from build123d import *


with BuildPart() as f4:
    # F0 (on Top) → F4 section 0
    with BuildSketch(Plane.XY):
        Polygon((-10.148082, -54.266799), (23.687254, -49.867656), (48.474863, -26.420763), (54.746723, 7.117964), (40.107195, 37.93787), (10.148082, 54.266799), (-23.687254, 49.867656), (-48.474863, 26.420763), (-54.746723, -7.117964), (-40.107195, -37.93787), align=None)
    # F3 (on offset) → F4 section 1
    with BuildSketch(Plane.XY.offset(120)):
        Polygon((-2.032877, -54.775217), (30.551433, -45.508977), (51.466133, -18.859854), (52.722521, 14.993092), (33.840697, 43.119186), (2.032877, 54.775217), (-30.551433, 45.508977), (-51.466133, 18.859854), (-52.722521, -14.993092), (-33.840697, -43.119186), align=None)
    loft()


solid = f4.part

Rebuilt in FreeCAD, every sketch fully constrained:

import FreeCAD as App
import Part
import Sketcher


def add_polygon(sketch, points):
    """Adds a closed chain of lines whose ends are joined by coincident constraints."""
    first, n = sketch.GeometryCount, len(points)
    for a, b in zip(points, points[1:] + points[:1]):
        sketch.addGeometry(Part.LineSegment(App.Vector(*a, 0), App.Vector(*b, 0)), False)
    for i in range(n):
        sketch.addConstraint(Sketcher.Constraint("Coincident", first + i, 2, first + (i + 1) % n, 1))

doc = App.newDocument("Part")
body = doc.addObject("PartDesign::Body", "Body")

# Sketch on XY plane
sketch1 = body.newObject("Sketcher::SketchObject", "Sketch")
sketch1.AttachmentSupport = (doc.getObject("XY_Plane"), [""])
sketch1.MapMode = "FlatFace"
add_polygon(sketch1, [(-10, -54), (24, -50), (48, -26), (55, 7), (40, 38), (10, 54), (-24, 50), (-48, 26), (-55, -7), (-40, -38)])  # lines 0-9
sketch1.addConstraint([
    Sketcher.Constraint("Symmetric", 0, 2, 5, 2, -1, 1),
    Sketcher.Constraint("Symmetric", 1, 2, 6, 2, -1, 1),
    Sketcher.Constraint("Symmetric", 2, 2, 7, 2, -1, 1),
    Sketcher.Constraint("Symmetric", 3, 2, 8, 2, -1, 1),
    Sketcher.Constraint("Symmetric", 4, 2, 9, 2, -1, 1),
    Sketcher.Constraint("Equal", 0, 1),
    Sketcher.Constraint("Equal", 1, 2),
    Sketcher.Constraint("Equal", 2, 3),
    Sketcher.Constraint("Equal", 3, 4),
    Sketcher.Constraint("DistanceY", -1, 1, 4, 2, 54.266799),
    Sketcher.Constraint("DistanceY", 2, 2, 6, 2, 19.302799),
    Sketcher.Constraint("DistanceY", -1, 1, 3, 2, 37.93787),
    Sketcher.Constraint("DistanceX", 0, 2, 1, 2, 24.787609),
    Sketcher.Constraint("DistanceX", 1, 2, 2, 2, 6.27186),
    Sketcher.Constraint("DistanceY", 0, 2, 2, 2, 56.98562),
])

# Sketch on XY plane
sketch2 = body.newObject("Sketcher::SketchObject", "Sketch001")
sketch2.AttachmentSupport = (doc.getObject("XY_Plane"), [""])
sketch2.MapMode = "FlatFace"
sketch2.AttachmentOffset = App.Placement(App.Vector(0, 0, 120), App.Rotation())
add_polygon(sketch2, [(-2, -55), (31, -46), (51, -19), (53, 15), (34, 43), (2, 55), (-31, 46), (-51, 19), (-53, -15), (-34, -43)])  # lines 0-9
sketch2.addConstraint([
    Sketcher.Constraint("Symmetric", 0, 2, 5, 2, -1, 1),
    Sketcher.Constraint("Symmetric", 1, 2, 6, 2, -1, 1),
    Sketcher.Constraint("Symmetric", 2, 2, 7, 2, -1, 1),
    Sketcher.Constraint("Symmetric", 3, 2, 8, 2, -1, 1),
    Sketcher.Constraint("Symmetric", 4, 2, 9, 2, -1, 1),
    Sketcher.Constraint("Equal", 0, 1),
    Sketcher.Constraint("Equal", 1, 2),
    Sketcher.Constraint("Equal", 2, 3),
    Sketcher.Constraint("Equal", 3, 4),
    Sketcher.Constraint("DistanceX", 0, 2, 1, 2, 20.9147),
    Sketcher.Constraint("Distance", 1, 33.876252),
    Sketcher.Constraint("DistanceX", -1, 1, 2, 2, 52.722521),
    Sketcher.Constraint("DistanceX", 1, 2, 2, 2, 1.256388),
    Sketcher.Constraint("DistanceY", 1, 2, 3, 2, 61.97904),
    Sketcher.Constraint("DistanceX", 4, 2, 3, 2, 31.80782),
])

additiveloft = body.newObject("PartDesign::AdditiveLoft", "AdditiveLoft")
additiveloft.Profile = sketch1
additiveloft.Sections = [sketch2]

doc.recompute()
